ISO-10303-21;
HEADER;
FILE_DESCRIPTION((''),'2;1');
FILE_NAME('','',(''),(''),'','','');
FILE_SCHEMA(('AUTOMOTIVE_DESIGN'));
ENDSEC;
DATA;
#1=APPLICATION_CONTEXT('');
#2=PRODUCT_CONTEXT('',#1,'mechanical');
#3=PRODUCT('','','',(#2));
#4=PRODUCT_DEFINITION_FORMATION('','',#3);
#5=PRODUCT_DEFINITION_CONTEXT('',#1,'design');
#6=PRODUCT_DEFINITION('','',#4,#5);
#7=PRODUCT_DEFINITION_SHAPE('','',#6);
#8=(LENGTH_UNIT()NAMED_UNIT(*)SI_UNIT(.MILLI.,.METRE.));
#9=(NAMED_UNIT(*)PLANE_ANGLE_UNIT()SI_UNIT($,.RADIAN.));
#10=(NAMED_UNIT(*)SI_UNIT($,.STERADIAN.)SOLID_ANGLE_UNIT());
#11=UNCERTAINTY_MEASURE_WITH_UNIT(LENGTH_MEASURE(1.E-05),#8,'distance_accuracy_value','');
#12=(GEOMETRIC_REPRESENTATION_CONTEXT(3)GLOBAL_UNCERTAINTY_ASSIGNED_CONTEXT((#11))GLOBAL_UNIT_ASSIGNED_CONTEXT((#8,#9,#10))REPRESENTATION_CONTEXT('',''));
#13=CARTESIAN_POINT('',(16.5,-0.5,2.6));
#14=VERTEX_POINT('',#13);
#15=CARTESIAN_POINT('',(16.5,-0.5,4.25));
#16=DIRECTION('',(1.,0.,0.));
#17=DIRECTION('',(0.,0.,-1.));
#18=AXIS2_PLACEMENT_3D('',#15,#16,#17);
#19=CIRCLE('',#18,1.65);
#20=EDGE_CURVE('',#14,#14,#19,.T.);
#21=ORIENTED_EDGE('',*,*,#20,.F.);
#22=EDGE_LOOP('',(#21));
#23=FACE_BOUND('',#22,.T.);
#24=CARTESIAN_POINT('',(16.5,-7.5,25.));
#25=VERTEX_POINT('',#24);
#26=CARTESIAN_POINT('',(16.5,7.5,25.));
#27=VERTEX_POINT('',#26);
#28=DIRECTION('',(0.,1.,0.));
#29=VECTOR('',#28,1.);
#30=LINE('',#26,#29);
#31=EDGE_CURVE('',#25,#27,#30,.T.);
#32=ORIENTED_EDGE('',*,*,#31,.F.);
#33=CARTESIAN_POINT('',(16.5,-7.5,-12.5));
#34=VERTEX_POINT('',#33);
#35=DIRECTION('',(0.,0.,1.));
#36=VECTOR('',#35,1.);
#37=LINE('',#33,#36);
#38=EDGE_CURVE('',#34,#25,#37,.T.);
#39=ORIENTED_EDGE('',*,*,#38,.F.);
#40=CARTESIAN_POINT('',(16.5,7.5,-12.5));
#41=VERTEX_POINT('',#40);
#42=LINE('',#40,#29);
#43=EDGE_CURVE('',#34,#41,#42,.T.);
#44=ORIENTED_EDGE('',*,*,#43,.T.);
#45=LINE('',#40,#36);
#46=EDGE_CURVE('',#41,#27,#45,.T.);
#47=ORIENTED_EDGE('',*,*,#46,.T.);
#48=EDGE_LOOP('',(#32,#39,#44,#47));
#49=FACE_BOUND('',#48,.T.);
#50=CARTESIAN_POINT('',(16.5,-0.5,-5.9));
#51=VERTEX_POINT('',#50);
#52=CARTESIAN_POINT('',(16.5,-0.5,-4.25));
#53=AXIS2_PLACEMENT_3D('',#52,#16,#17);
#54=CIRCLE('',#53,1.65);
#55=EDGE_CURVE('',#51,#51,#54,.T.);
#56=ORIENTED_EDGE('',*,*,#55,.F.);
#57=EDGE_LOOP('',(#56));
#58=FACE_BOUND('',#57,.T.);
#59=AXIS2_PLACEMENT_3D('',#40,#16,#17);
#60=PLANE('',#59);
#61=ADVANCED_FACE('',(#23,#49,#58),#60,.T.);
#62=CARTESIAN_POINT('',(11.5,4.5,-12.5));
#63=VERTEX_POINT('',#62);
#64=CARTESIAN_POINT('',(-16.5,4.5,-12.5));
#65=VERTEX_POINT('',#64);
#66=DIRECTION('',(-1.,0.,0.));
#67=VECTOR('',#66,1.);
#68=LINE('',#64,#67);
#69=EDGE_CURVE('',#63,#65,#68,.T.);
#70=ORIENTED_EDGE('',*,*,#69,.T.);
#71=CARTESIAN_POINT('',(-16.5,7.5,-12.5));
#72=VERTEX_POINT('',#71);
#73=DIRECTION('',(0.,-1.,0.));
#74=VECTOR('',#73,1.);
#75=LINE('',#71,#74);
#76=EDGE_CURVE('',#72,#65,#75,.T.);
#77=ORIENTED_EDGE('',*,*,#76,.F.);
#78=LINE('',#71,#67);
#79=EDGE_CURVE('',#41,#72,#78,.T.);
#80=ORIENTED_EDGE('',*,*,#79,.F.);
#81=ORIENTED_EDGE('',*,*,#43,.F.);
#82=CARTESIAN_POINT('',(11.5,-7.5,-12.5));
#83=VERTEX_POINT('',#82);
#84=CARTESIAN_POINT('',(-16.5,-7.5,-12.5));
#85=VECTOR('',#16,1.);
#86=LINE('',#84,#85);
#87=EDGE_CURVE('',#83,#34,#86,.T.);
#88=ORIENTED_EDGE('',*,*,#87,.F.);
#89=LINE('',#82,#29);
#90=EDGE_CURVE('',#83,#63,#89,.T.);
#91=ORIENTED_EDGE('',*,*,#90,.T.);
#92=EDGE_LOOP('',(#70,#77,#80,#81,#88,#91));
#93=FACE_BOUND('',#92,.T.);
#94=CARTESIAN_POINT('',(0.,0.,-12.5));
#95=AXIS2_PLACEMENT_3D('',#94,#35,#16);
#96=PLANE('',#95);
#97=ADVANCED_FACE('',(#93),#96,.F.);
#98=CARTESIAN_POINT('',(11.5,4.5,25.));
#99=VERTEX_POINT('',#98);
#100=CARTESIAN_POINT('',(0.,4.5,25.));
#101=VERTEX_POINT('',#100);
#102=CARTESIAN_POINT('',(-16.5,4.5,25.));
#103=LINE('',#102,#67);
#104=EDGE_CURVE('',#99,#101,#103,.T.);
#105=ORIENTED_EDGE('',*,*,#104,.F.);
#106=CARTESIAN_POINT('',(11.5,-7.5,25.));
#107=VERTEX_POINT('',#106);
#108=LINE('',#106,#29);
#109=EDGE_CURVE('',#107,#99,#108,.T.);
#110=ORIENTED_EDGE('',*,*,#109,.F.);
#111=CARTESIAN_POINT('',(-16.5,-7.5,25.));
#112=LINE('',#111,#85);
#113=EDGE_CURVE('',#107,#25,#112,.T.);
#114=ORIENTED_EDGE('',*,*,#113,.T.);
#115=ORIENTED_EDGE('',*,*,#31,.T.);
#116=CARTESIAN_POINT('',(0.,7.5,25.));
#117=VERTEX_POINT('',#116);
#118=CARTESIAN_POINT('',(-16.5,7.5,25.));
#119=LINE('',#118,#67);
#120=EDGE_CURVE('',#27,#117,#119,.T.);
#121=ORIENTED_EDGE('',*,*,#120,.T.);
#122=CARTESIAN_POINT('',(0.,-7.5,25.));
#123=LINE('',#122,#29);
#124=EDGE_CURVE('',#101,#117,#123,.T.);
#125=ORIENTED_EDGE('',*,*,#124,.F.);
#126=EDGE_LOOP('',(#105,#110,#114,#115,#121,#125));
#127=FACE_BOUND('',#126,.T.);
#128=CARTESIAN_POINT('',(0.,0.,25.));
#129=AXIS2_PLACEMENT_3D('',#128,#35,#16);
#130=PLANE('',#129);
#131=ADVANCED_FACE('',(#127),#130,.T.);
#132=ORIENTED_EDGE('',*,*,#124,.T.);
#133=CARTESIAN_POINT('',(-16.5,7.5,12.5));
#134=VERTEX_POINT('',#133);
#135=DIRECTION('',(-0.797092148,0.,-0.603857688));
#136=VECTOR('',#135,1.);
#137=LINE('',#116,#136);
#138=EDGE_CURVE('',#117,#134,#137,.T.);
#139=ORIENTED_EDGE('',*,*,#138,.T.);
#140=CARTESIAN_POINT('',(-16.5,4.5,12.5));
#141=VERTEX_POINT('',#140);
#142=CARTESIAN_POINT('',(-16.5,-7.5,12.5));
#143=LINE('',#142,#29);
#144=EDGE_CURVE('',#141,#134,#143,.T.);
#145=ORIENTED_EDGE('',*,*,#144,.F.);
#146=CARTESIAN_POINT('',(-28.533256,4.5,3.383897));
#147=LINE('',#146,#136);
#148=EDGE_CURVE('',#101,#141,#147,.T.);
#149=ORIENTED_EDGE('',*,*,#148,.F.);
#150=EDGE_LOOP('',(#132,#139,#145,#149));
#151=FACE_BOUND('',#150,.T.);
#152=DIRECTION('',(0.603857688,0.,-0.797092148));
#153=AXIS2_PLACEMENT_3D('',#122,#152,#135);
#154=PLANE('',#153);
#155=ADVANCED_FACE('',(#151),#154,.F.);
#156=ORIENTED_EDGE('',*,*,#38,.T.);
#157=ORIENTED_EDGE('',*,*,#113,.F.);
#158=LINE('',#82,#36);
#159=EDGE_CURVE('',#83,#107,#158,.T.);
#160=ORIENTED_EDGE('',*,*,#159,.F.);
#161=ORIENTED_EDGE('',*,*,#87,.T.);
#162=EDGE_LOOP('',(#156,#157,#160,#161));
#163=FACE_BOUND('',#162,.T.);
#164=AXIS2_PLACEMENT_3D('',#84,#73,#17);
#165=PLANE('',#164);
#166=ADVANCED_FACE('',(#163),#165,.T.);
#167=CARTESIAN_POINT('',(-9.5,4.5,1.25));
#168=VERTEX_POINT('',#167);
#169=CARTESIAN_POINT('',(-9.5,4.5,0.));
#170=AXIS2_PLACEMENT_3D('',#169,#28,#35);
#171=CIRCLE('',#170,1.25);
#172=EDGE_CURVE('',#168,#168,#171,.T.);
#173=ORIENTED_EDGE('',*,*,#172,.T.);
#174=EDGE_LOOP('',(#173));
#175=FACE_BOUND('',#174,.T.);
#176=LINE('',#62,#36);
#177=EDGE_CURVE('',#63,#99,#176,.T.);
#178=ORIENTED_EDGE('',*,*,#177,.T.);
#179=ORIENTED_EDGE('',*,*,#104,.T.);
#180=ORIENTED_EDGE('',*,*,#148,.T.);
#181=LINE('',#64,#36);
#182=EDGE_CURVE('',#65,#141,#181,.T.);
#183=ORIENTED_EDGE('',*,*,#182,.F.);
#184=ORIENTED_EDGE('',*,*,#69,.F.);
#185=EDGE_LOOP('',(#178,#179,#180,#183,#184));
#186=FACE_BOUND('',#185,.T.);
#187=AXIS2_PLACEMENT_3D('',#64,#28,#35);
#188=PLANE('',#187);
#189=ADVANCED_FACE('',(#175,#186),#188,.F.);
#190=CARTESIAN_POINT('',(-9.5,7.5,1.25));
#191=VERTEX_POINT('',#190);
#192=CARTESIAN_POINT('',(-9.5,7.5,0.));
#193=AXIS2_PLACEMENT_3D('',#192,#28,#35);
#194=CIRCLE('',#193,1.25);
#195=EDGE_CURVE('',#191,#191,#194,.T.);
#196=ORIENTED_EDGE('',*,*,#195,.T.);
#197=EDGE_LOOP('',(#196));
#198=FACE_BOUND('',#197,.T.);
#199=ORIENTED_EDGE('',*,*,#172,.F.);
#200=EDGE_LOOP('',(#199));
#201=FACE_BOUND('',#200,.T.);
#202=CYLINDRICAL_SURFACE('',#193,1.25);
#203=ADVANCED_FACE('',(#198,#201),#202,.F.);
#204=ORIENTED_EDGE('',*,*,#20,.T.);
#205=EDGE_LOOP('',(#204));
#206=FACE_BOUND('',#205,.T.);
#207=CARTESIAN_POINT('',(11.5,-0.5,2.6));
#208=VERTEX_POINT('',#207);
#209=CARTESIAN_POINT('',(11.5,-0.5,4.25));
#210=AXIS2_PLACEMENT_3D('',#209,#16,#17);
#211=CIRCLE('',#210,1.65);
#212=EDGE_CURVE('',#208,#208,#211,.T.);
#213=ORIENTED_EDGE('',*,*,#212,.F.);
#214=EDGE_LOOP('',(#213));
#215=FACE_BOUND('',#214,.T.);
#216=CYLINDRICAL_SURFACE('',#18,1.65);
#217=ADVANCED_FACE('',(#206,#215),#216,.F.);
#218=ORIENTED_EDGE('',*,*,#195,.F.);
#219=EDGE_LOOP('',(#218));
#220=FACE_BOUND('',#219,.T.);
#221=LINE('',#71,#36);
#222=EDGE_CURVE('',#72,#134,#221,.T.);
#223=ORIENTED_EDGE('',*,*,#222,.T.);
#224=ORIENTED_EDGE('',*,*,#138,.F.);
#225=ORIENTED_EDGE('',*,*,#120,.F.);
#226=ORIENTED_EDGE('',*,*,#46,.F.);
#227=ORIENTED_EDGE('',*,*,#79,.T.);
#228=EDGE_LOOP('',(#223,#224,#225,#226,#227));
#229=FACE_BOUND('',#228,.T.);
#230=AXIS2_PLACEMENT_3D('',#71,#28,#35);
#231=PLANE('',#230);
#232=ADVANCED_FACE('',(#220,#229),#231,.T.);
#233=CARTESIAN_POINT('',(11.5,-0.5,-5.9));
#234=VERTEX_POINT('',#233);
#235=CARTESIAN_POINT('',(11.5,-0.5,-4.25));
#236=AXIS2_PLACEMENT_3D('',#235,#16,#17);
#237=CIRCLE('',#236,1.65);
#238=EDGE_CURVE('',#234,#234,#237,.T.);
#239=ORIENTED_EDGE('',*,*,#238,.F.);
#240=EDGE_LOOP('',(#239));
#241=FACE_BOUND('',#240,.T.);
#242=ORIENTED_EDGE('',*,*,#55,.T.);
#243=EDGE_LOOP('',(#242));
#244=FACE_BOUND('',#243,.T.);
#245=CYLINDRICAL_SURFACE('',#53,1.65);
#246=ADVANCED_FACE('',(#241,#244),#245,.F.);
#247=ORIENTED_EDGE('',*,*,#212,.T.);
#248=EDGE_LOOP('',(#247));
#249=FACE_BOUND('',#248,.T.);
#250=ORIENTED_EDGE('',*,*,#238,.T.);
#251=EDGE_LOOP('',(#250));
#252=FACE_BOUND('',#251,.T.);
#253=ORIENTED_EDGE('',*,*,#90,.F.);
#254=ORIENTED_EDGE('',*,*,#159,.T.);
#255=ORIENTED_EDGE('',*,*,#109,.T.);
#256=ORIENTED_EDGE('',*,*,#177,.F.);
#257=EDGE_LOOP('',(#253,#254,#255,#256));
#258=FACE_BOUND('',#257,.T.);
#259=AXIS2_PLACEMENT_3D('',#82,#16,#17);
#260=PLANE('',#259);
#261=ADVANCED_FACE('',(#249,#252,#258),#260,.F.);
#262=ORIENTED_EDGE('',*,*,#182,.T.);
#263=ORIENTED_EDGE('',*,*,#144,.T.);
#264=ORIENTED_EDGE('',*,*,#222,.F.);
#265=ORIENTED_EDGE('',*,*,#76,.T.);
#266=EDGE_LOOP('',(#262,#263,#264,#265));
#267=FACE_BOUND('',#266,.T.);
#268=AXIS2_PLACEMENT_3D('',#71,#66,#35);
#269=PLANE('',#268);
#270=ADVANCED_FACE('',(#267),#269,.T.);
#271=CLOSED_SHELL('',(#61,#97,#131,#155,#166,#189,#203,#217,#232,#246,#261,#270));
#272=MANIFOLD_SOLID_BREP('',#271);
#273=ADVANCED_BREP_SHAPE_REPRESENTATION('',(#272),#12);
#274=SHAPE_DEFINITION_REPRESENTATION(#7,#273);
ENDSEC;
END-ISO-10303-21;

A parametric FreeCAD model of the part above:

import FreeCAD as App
import Part
import Sketcher

V = App.Vector
Q = App.Units.Quantity


def add_polygon(sketch, points):
    """Adds a closed chain of lines whose ends are joined by coincident constraints."""
    first, n = sketch.GeometryCount, len(points)
    for a, b in zip(points, points[1:] + points[:1]):
        sketch.addGeometry(Part.LineSegment(App.Vector(*a, 0), App.Vector(*b, 0)), False)
    for i in range(n):
        sketch.addConstraint(Sketcher.Constraint("Coincident", first + i, 2, first + (i + 1) % n, 1))

doc = App.newDocument("Part")
body = doc.addObject("PartDesign::Body", "Body")

sketch1 = doc.addObject("Sketcher::SketchObject", "Sketch")
body.addObject(sketch1)
sketch1.AttachmentSupport = (doc.XY_Plane, [""])
sketch1.MapMode = "FlatFace"
add_polygon(sketch1, [(-16, 8), (-16, -8), (16, -8), (16, 8)])
sketch1.addConstraint(Sketcher.Constraint("Vertical", 0))
sketch1.addConstraint(Sketcher.Constraint("Horizontal", 1))
sketch1.addConstraint(Sketcher.Constraint("Vertical", 2))
sketch1.addConstraint(Sketcher.Constraint("Horizontal", 3))
sketch1.addConstraint(Sketcher.Constraint("Symmetric", 0, 2, 2, 2, -1, 1))
sketch1.addConstraint(Sketcher.Constraint("DistanceX", 1, 1, 1, 2, Q("33 mm")))
sketch1.addConstraint(Sketcher.Constraint("DistanceY", 0, 2, 0, 1, Q("15 mm")))
pad1 = doc.addObject("PartDesign::Pad", "Pad")
body.addObject(pad1)
pad1.Profile = sketch1
pad1.Type = "TwoLengths"
pad1.Length = 25
pad1.Length2 = 12.5

sketch2 = doc.addObject("Sketcher::SketchObject", "Sketch001")
body.addObject(sketch2)
sketch2.AttachmentSupport = (doc.XY_Plane, [""])
sketch2.MapMode = "FlatFace"
sketch2.AttachmentOffset = App.Placement(V(0, 0, 25), App.Rotation())
add_polygon(sketch2, [(-16, 4), (-16, -8), (12, -8), (12, 4)])
sketch2.addConstraint(Sketcher.Constraint("Vertical", 0))
sketch2.addConstraint(Sketcher.Constraint("Horizontal", 1))
sketch2.addConstraint(Sketcher.Constraint("Vertical", 2))
sketch2.addConstraint(Sketcher.Constraint("Horizontal", 3))
sketch2.addConstraint(Sketcher.Constraint("DistanceX", 1, 1, 1, 2, Q("28 mm")))
sketch2.addConstraint(Sketcher.Constraint("DistanceY", 0, 2, 0, 1, Q("12 mm")))
sketch2.addConstraint(Sketcher.Constraint("DistanceX", 0, 2, -1, 1, Q("16.5 mm")))
sketch2.addConstraint(Sketcher.Constraint("DistanceY", 0, 2, -1, 1, Q("7.5 mm")))
pocket1 = doc.addObject("PartDesign::Pocket", "Pocket")
body.addObject(pocket1)
pocket1.Profile = sketch2
pocket1.Type = "ThroughAll"

sketch3 = doc.addObject("Sketcher::SketchObject", "Sketch002")
body.addObject(sketch3)
sketch3.AttachmentSupport = (doc.XZ_Plane, [""])
sketch3.MapMode = "FlatFace"
sketch3.AttachmentOffset = App.Placement(V(0, 0, -7.5), App.Rotation())
sketch3.addGeometry(Part.Circle(V(-9.5, 0, 0), V(0, 0, 1), 1.2), False)
sketch3.addConstraint(Sketcher.Constraint("PointOnObject", 0, 3, -1))
sketch3.addConstraint(Sketcher.Constraint("Diameter", 0, Q("2.5 mm")))
sketch3.addConstraint(Sketcher.Constraint("DistanceX", 0, 3, -1, 1, Q("9.5 mm")))
doc.recompute()
hole = doc.addObject("PartDesign::Hole", "Hole")
body.addObject(hole)
hole.Profile = sketch3
hole.ThreadType = "None"
hole.Diameter = 2.5
hole.DepthType = "ThroughAll"
hole.Reversed = True

sketch4 = doc.addObject("Sketcher::SketchObject", "Sketch003")
body.addObject(sketch4)
sketch4.AttachmentSupport = (doc.YZ_Plane, [""])
sketch4.MapMode = "FlatFace"
sketch4.AttachmentOffset = App.Placement(V(0, 0, 16.5), App.Rotation())
sketch4.addGeometry(Part.Circle(V(-0.5, 4.2, 0), V(0, 0, 1), 1.6), False)
sketch4.addGeometry(Part.Circle(V(-0.5, -4.2, 0), V(0, 0, 1), 1.6), False)
sketch4.addConstraint(Sketcher.Constraint("Equal", 0, 1))
sketch4.addConstraint(Sketcher.Constraint("Symmetric", 0, 3, 1, 3, -1))
sketch4.addConstraint(Sketcher.Constraint("Diameter", 0, Q("3.3 mm")))
sketch4.addConstraint(Sketcher.Constraint("DistanceX", 0, 3, -1, 1, Q("0.5 mm")))
sketch4.addConstraint(Sketcher.Constraint("DistanceY", 1, 3, 0, 3, Q("8.5 mm")))
doc.recompute()
hole2 = doc.addObject("PartDesign::Hole", "Hole001")
body.addObject(hole2)
hole2.Profile = sketch4
hole2.ThreadType = "None"
hole2.Diameter = 3.3
hole2.DepthType = "ThroughAll"

sketch5 = doc.addObject("Sketcher::SketchObject", "Sketch004")
body.addObject(sketch5)
sketch5.AttachmentSupport = (doc.XZ_Plane, [""])
sketch5.MapMode = "FlatFace"
sketch5.AttachmentOffset = App.Placement(V(0, 0, -7.5), App.Rotation())
add_polygon(sketch5, [(0, 25), (-16, 12), (-16, 25)])
sketch5.addConstraint(Sketcher.Constraint("Vertical", 1))
sketch5.addConstraint(Sketcher.Constraint("Horizontal", 2))
sketch5.addConstraint(Sketcher.Constraint("PointOnObject", 2, 2, -2))
sketch5.addConstraint(Sketcher.Constraint("DistanceX", 2, 1, 2, 2, Q("16.5 mm")))
sketch5.addConstraint(Sketcher.Constraint("DistanceY", 1, 1, 1, 2, Q("12.5 mm")))
sketch5.addConstraint(Sketcher.Constraint("DistanceY", -1, 1, 1, 2, Q("25 mm")))
pocket2 = doc.addObject("PartDesign::Pocket", "Pocket001")
body.addObject(pocket2)
pocket2.Profile = sketch5
pocket2.Type = "ThroughAll"
pocket2.Reversed = True

doc.recompute()
